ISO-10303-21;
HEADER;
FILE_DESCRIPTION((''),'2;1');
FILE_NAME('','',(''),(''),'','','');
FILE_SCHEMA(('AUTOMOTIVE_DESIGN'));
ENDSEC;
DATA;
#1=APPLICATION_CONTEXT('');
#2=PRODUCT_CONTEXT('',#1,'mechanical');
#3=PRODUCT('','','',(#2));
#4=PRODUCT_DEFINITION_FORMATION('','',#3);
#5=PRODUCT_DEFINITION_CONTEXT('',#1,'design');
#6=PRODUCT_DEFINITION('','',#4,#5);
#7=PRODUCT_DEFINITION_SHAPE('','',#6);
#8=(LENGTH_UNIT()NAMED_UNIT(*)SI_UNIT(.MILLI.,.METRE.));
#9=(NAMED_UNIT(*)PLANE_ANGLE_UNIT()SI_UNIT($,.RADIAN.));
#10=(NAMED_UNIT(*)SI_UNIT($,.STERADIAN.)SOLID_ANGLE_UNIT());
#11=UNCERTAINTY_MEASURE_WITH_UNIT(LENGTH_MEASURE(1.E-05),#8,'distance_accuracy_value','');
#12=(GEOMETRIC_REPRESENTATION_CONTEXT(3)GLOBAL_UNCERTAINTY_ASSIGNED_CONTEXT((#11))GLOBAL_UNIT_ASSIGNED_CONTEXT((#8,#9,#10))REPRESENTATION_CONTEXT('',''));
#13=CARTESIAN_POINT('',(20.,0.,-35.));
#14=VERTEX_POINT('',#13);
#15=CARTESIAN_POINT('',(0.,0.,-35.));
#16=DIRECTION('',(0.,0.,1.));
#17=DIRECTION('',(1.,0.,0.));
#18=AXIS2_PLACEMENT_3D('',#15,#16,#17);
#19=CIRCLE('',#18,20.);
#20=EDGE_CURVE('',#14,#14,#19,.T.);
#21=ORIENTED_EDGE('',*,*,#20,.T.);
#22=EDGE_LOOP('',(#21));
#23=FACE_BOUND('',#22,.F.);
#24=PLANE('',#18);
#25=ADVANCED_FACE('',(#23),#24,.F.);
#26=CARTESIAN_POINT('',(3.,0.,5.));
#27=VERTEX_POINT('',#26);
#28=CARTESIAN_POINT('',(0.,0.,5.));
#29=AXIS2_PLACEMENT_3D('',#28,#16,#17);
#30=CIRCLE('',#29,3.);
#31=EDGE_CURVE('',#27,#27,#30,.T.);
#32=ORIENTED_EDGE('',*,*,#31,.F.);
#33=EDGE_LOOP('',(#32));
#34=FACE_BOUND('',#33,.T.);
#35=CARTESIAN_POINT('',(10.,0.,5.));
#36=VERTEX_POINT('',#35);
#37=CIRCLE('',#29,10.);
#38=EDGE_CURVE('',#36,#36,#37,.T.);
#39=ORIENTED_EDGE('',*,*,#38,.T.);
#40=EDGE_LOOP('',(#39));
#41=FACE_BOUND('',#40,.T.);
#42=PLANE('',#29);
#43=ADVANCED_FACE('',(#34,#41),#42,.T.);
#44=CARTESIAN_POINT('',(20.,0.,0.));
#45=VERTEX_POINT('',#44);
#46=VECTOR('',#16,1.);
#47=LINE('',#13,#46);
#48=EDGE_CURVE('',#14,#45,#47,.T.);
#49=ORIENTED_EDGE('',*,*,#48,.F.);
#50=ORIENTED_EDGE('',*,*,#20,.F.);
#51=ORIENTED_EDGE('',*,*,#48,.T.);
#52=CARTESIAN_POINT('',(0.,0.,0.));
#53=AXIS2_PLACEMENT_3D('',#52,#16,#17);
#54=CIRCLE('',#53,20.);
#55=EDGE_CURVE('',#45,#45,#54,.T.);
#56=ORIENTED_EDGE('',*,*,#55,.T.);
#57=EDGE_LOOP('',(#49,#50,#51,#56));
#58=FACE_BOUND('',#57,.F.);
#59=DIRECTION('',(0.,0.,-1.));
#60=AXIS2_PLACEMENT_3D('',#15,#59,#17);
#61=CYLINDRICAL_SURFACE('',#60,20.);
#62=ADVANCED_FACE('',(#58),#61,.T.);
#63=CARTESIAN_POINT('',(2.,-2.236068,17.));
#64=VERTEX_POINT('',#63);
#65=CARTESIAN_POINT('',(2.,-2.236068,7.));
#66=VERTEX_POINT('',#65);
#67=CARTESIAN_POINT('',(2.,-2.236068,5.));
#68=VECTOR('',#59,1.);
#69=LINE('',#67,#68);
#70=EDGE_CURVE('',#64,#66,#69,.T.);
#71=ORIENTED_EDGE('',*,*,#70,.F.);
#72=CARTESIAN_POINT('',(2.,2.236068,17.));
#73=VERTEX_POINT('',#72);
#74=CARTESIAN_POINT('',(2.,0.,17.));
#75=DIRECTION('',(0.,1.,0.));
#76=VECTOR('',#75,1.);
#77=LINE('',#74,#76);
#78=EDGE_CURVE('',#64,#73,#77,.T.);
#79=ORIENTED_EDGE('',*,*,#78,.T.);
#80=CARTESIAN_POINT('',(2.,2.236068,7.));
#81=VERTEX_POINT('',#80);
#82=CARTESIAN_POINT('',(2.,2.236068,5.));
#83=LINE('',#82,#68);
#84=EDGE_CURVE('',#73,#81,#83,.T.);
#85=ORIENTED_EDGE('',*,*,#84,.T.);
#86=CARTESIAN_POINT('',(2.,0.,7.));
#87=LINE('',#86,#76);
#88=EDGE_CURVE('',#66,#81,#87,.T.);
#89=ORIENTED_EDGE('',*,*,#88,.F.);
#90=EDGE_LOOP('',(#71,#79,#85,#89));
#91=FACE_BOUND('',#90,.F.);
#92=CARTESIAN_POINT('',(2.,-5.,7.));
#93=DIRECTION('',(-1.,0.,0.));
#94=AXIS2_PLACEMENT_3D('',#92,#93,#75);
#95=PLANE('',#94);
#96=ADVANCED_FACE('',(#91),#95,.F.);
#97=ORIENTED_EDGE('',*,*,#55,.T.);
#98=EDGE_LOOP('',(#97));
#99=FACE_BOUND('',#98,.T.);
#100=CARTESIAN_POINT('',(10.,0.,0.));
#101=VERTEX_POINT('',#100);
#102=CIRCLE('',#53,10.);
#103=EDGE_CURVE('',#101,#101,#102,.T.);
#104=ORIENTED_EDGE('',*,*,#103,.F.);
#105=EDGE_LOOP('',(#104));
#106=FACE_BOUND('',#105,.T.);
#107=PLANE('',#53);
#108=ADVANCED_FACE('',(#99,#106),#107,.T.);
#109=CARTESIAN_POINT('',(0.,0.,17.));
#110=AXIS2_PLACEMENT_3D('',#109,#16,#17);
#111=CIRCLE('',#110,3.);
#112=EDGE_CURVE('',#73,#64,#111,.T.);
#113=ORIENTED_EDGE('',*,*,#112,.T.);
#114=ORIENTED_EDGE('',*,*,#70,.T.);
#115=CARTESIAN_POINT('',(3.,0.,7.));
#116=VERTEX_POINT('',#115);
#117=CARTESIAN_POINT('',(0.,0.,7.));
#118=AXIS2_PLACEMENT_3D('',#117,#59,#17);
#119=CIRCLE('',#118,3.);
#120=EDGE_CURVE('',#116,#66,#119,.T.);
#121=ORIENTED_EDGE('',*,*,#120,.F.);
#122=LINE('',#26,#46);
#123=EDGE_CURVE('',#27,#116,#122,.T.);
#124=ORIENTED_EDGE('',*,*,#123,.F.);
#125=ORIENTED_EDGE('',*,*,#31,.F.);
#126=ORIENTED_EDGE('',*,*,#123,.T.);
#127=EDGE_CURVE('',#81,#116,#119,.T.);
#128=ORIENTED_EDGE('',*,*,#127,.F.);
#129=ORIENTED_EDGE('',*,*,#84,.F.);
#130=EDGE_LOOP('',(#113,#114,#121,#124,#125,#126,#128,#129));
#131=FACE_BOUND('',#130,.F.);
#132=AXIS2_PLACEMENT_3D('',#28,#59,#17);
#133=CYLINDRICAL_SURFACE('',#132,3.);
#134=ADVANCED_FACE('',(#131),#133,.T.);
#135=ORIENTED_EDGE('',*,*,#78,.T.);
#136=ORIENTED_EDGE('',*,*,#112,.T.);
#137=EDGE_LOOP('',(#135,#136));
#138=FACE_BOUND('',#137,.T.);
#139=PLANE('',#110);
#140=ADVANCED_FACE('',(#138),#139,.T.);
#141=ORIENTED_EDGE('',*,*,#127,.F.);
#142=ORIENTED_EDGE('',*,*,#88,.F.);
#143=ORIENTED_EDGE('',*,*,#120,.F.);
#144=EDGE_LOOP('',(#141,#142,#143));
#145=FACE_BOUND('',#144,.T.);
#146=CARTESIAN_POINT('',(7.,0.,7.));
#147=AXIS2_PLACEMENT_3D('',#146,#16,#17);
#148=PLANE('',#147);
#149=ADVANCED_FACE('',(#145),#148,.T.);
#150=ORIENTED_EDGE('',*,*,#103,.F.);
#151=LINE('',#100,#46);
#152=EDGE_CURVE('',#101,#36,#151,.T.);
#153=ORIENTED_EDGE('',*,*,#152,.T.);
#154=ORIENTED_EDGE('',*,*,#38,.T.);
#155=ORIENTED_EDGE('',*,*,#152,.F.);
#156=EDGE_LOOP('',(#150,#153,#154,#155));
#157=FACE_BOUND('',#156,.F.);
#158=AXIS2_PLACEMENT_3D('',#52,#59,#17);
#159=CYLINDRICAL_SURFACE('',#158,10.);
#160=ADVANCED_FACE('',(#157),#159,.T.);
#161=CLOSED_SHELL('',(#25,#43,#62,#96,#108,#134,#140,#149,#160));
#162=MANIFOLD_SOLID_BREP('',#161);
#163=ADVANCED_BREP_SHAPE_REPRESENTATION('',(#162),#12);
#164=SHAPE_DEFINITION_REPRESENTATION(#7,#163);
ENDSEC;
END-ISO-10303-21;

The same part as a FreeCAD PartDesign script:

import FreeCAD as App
import Part
import Sketcher

V = App.Vector
Q = App.Units.Quantity

doc = App.newDocument("Part")
body = doc.addObject("PartDesign::Body", "Body")

# Sketch on XY plane
sketch1 = body.newObject("Sketcher::SketchObject", "Sketch")
sketch1.AttachmentSupport = (doc.getObject("XY_Plane"), [""])
sketch1.MapMode = "FlatFace"
sketch1.AttachmentOffset = App.Placement(V(0, 0, 7), App.Rotation())
sketch1.addGeometry([
    Part.LineSegment(V(2, 5, 0), V(2, -5, 0)),
    Part.LineSegment(V(2, -5, 0), V(12, -5, 0)),
    Part.LineSegment(V(12, -5, 0), V(12, 5, 0)),
    Part.LineSegment(V(12, 5, 0), V(2, 5, 0)),
], False)
sketch1.addConstraint([
    Sketcher.Constraint("Coincident", 0, 2, 1, 1),
    Sketcher.Constraint("Coincident", 1, 2, 2, 1),
    Sketcher.Constraint("Coincident", 2, 2, 3, 1),
    Sketcher.Constraint("Coincident", 3, 2, 0, 1),
    Sketcher.Constraint("Vertical", 0),
    Sketcher.Constraint("Horizontal", 1),
    Sketcher.Constraint("Vertical", 2),
    Sketcher.Constraint("Horizontal", 3),
    Sketcher.Constraint("Equal", 3, 0),
    Sketcher.Constraint("DistanceX", 1, 1, 1, 2, Q("10 mm")),
    Sketcher.Constraint("DistanceX", -1, 1, 0, 2, Q("2 mm")),
    Sketcher.Constraint("DistanceY", 0, 2, -1, 1, Q("5 mm")),
])
pad1 = body.newObject("PartDesign::Pad", "Pad")
pad1.Profile = sketch1
pad1.Length = 10
body2 = doc.addObject("PartDesign::Body", "Body001")

# Sketch on XY plane
sketch2 = body2.newObject("Sketcher::SketchObject", "Sketch001")
sketch2.AttachmentSupport = (doc.getObject("XY_Plane001"), [""])
sketch2.MapMode = "FlatFace"
sketch2.addGeometry(Part.Circle(V(0, 0, 0), V(0, 0, 1), 10), False)
sketch2.addConstraint([
    Sketcher.Constraint("Coincident", 0, 3, -1, 1),
    Sketcher.Constraint("Diameter", 0, Q("20 mm")),
])
pad2 = body2.newObject("PartDesign::Pad", "Pad001")
pad2.Profile = sketch2
pad2.Length = 5
body3 = doc.addObject("PartDesign::Body", "Body002")

# Sketch on XY plane
sketch3 = body3.newObject("Sketcher::SketchObject", "Sketch002")
sketch3.AttachmentSupport = (doc.getObject("XY_Plane002"), [""])
sketch3.MapMode = "FlatFace"
sketch3.AttachmentOffset = App.Placement(V(0, 0, 5), App.Rotation())
sketch3.addGeometry(Part.Circle(V(0, 0, 0), V(0, 0, 1), 3), False)
sketch3.addConstraint([
    Sketcher.Constraint("Coincident", 0, 3, -1, 1),
    Sketcher.Constraint("Diameter", 0, Q("6 mm")),
])
pad3 = body3.newObject("PartDesign::Pad", "Pad002")
pad3.Profile = sketch3
pad3.Length = 12
body4 = doc.addObject("PartDesign::Body", "Body003")

# Sketch on XY plane
sketch4 = body4.newObject("Sketcher::SketchObject", "Sketch003")
sketch4.AttachmentSupport = (doc.getObject("XY_Plane003"), [""])
sketch4.MapMode = "FlatFace"
sketch4.AttachmentOffset = App.Placement(V(0, 0, -35), App.Rotation())
sketch4.addGeometry(Part.Circle(V(0, 0, 0), V(0, 0, 1), 20), False)
sketch4.addConstraint([
    Sketcher.Constraint("Coincident", 0, 3, -1, 1),
    Sketcher.Constraint("Diameter", 0, Q("40 mm")),
])
pad4 = body4.newObject("PartDesign::Pad", "Pad003")
pad4.Profile = sketch4
pad4.Length = 35
doc.recompute()

boolean = body4.newObject("PartDesign::Boolean", "Boolean")
boolean.Type = "Fuse"
boolean.addObjects([body2])
doc.recompute()

boolean2 = body4.newObject("PartDesign::Boolean", "Boolean001")
boolean2.Type = "Fuse"
boolean2.addObjects([body3])
doc.recompute()

boolean3 = body4.newObject("PartDesign::Boolean", "Boolean002")
boolean3.Type = "Cut"
boolean3.addObjects([body])

doc.recompute()
